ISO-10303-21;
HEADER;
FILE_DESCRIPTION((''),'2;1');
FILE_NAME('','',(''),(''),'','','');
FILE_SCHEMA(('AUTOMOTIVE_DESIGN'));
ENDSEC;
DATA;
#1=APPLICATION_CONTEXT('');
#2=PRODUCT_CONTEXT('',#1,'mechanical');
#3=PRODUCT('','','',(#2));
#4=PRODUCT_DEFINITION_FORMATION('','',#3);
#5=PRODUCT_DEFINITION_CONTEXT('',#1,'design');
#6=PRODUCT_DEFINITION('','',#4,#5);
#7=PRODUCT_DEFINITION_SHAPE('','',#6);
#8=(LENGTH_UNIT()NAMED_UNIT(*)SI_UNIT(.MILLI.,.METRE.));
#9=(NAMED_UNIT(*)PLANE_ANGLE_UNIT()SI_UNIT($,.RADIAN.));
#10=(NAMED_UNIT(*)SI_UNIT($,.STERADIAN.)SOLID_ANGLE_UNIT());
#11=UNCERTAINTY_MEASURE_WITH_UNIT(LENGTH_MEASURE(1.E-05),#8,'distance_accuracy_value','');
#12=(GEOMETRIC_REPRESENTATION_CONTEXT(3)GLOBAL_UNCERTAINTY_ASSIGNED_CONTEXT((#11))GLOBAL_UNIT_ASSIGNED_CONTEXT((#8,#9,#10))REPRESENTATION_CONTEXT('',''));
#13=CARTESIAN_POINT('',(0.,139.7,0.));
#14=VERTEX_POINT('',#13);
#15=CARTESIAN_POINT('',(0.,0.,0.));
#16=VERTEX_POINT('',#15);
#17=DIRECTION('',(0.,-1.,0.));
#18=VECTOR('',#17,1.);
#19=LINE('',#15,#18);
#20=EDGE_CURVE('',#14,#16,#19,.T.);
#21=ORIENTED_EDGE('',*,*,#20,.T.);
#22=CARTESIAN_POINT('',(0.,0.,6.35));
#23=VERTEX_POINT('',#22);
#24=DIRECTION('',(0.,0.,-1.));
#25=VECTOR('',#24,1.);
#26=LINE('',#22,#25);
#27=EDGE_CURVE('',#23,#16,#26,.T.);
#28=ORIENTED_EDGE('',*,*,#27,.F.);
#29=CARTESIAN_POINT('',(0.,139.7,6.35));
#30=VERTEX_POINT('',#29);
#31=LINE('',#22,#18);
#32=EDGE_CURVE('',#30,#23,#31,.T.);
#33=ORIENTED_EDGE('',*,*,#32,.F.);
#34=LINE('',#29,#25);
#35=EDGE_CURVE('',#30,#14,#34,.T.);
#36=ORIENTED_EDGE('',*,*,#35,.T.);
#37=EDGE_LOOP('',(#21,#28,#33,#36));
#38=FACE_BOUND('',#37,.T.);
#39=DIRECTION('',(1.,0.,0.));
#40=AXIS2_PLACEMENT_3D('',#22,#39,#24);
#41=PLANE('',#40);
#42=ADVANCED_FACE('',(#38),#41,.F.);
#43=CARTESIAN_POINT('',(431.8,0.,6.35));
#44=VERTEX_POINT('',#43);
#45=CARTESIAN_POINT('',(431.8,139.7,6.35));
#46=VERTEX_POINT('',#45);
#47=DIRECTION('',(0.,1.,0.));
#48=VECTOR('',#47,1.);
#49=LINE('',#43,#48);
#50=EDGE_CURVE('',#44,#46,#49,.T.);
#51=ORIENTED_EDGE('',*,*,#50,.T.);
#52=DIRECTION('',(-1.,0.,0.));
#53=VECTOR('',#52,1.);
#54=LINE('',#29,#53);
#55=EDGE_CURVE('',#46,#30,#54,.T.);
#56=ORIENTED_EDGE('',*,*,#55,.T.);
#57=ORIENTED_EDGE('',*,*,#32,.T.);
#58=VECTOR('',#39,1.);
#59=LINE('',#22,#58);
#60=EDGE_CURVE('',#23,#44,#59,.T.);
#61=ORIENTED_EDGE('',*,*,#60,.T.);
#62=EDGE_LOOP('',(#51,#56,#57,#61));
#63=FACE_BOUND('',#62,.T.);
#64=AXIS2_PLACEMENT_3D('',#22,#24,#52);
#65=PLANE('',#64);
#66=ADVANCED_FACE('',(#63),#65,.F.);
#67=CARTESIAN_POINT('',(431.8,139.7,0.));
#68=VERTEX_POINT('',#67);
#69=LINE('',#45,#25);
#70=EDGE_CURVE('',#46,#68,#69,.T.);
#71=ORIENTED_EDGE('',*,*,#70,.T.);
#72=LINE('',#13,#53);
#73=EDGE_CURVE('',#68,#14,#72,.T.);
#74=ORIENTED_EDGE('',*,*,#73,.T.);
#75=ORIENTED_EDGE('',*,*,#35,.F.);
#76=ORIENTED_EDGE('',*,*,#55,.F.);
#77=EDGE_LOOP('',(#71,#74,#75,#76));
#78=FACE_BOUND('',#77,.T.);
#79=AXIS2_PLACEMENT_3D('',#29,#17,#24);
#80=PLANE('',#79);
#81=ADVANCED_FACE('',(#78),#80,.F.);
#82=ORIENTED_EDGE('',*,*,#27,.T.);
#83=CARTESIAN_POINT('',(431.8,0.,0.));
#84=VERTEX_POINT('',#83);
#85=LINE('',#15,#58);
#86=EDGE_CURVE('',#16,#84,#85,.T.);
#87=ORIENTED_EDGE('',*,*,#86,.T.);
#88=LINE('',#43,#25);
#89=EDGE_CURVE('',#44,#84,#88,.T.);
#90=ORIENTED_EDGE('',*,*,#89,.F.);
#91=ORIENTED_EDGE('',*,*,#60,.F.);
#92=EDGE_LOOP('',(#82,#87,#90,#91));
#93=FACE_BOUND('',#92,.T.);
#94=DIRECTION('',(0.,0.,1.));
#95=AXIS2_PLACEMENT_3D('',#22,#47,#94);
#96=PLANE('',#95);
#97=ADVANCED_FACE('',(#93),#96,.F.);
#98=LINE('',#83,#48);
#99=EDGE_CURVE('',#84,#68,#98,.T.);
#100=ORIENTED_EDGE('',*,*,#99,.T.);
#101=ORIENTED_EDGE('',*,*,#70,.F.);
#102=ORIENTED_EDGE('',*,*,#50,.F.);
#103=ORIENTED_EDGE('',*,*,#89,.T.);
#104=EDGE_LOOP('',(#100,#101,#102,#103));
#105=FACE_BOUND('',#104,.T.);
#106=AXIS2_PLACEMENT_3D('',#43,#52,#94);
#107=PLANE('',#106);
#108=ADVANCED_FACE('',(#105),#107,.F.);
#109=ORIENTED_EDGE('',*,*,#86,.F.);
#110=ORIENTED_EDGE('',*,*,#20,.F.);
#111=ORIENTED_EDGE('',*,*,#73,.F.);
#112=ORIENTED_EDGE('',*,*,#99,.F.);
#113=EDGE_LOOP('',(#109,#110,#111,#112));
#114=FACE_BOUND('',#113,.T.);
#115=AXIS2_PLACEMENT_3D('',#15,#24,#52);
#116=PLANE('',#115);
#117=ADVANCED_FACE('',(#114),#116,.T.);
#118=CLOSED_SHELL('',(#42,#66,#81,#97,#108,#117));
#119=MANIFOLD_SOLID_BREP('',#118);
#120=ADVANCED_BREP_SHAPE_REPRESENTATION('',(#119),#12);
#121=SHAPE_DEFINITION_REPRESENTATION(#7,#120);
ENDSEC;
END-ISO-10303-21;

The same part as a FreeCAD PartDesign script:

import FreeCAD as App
import Part
import Sketcher

V = App.Vector
Q = App.Units.Quantity

doc = App.newDocument("Part")
body = doc.addObject("PartDesign::Body", "Body")

# Sketch on XY plane
sketch1 = body.newObject("Sketcher::SketchObject", "Sketch")
sketch1.AttachmentSupport = (doc.getObject("XY_Plane"), [""])
sketch1.MapMode = "FlatFace"
sketch1.addGeometry(Part.LineSegment(V(0, 140, 0), V(0, 0, 0)), False)
sketch1.addGeometry(Part.LineSegment(V(0, 0, 0), V(432, 0, 0)), False)
sketch1.addGeometry(Part.LineSegment(V(432, 0, 0), V(432, 140, 0)), False)
sketch1.addGeometry(Part.LineSegment(V(432, 140, 0), V(0, 140, 0)), False)
sketch1.addConstraint(Sketcher.Constraint("Coincident", 0, 2, 1, 1))
sketch1.addConstraint(Sketcher.Constraint("Coincident", 1, 2, 2, 1))
sketch1.addConstraint(Sketcher.Constraint("Coincident", 2, 2, 3, 1))
sketch1.addConstraint(Sketcher.Constraint("Coincident", 3, 2, 0, 1))
sketch1.addConstraint(Sketcher.Constraint("Vertical", 0))
sketch1.addConstraint(Sketcher.Constraint("Horizontal", 1))
sketch1.addConstraint(Sketcher.Constraint("Vertical", 2))
sketch1.addConstraint(Sketcher.Constraint("Horizontal", 3))
sketch1.addConstraint(Sketcher.Constraint("Coincident", 0, 2, -1, 1))
sketch1.addConstraint(Sketcher.Constraint("DistanceX", 1, 1, 1, 2, Q("17 in")))
sketch1.addConstraint(Sketcher.Constraint("DistanceY", 0, 2, 0, 1, Q("5.5 in")))
pad1 = body.newObject("PartDesign::Pad", "Pad")
pad1.Profile = sketch1
pad1.Length = Q("0.25 in")

doc.recompute()
